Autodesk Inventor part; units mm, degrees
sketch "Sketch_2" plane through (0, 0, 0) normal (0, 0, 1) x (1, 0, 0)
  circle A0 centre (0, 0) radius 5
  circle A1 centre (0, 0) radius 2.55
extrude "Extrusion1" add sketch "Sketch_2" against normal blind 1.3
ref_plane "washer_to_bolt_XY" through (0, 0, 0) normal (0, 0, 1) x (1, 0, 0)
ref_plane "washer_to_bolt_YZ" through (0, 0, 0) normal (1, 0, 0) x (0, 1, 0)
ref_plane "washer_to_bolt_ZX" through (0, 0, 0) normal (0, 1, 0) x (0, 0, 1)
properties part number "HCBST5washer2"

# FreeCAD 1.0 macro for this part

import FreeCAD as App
import Part
import Sketcher
from FreeCAD import Vector

doc = App.newDocument("Part")
body = doc.addObject("PartDesign::Body", "Body")

# Sketch on XY plane
sketch1 = doc.addObject("Sketcher::SketchObject", "Sketch")
body.addObject(sketch1)
sketch1.AttachmentSupport = (doc.XY_Plane, [""])
sketch1.MapMode = "FlatFace"
sketch1.addGeometry(Part.Circle(Vector(0, 0, 0), Vector(0, 0, 1), 5), False)
sketch1.addGeometry(Part.Circle(Vector(0, 0, 0), Vector(0, 0, 1), 2.5), False)
sketch1.addConstraint(Sketcher.Constraint("Coincident", 0, 3, -1, 1))
sketch1.addConstraint(Sketcher.Constraint("Coincident", 1, 3, -1, 1))
sketch1.addConstraint(Sketcher.Constraint("Diameter", 0, 10.0))
sketch1.addConstraint(Sketcher.Constraint("Diameter", 1, 5.1))
pad1 = doc.addObject("PartDesign::Pad", "Pad")
body.addObject(pad1)
pad1.Profile = sketch1
pad1.Length = 1.3
pad1.Reversed = True

doc.recompute()
